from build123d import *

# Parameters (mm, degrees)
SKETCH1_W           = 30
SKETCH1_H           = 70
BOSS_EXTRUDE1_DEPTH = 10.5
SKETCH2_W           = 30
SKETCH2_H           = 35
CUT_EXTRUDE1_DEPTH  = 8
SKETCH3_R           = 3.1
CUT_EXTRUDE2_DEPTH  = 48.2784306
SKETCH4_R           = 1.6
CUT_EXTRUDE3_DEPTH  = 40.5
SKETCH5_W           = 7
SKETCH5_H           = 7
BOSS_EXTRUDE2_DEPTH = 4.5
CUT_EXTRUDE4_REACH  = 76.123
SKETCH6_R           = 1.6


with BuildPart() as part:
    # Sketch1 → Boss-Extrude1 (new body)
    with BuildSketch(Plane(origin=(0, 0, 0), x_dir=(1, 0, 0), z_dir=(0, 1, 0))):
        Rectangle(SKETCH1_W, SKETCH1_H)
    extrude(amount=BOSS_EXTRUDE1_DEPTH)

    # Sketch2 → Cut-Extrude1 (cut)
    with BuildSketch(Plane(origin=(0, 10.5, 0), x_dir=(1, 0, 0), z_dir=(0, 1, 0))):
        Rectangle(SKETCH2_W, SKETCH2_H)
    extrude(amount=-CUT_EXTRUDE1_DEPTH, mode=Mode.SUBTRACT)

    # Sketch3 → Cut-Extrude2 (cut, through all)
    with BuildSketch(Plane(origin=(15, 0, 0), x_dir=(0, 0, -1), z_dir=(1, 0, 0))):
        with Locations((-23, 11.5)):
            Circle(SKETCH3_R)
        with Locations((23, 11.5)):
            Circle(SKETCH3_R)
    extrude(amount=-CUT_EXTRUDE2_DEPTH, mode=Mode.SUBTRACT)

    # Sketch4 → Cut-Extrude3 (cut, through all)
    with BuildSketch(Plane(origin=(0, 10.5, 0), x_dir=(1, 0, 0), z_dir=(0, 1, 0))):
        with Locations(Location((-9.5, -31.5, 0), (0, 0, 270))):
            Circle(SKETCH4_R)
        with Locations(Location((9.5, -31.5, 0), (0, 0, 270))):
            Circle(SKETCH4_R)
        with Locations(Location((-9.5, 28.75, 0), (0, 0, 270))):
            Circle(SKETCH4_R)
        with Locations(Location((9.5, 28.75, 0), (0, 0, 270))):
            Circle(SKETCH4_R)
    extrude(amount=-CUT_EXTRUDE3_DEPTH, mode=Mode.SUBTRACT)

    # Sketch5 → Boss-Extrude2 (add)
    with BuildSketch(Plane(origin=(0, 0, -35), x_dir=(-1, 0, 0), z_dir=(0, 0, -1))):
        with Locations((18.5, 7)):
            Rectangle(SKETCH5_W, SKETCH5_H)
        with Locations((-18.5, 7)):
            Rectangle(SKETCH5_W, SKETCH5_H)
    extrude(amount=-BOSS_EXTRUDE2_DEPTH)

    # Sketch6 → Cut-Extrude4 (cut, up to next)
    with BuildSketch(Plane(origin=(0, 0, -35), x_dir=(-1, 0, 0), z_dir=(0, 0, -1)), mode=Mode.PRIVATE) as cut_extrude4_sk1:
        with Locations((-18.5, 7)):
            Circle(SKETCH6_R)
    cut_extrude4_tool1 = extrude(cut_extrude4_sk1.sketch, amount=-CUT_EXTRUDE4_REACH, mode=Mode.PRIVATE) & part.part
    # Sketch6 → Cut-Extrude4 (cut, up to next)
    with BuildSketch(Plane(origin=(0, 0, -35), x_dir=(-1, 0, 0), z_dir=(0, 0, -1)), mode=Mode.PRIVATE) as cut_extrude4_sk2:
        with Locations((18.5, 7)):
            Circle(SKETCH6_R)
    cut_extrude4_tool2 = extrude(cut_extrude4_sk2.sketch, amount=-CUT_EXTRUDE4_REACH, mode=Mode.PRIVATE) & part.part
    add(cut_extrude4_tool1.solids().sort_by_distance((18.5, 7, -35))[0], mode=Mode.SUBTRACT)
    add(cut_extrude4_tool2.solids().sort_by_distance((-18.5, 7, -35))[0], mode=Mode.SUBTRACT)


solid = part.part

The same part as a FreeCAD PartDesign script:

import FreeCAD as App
import Part
import Sketcher
from FreeCAD import Vector
Q = App.Units.Quantity


def add_polygon(sketch, points):
    """Adds a closed chain of lines whose ends are joined by coincident constraints."""
    first, n = sketch.GeometryCount, len(points)
    for a, b in zip(points, points[1:] + points[:1]):
        sketch.addGeometry(Part.LineSegment(App.Vector(*a, 0), App.Vector(*b, 0)), False)
    for i in range(n):
        sketch.addConstraint(Sketcher.Constraint("Coincident", first + i, 2, first + (i + 1) % n, 1))

doc = App.newDocument("Part")
body = doc.addObject("PartDesign::Body", "Body")

# Sketch on XZ plane
sketch1 = body.newObject("Sketcher::SketchObject", "Sketch")
sketch1.AttachmentSupport = (doc.getObject("XZ_Plane"), [""])
sketch1.MapMode = "FlatFace"
add_polygon(sketch1, [(-15, -35), (-15, 35), (15, 35), (15, -35)])  # lines 0-3
sketch1.addConstraint([
    Sketcher.Constraint("Vertical", 0),
    Sketcher.Constraint("Horizontal", 1),
    Sketcher.Constraint("Vertical", 2),
    Sketcher.Constraint("Horizontal", 3),
    Sketcher.Constraint("Symmetric", 0, 2, 2, 2, -1, 1),
    Sketcher.Constraint("DistanceX", 1, 1, 1, 2, Q("30 mm")),
    Sketcher.Constraint("DistanceY", 0, 1, 0, 2, Q("70 mm")),
])
pad1 = body.newObject("PartDesign::Pad", "Pad")
pad1.Profile = sketch1
pad1.Length = 10.5
pad1.Reversed = True

# Sketch on XZ plane
sketch2 = body.newObject("Sketcher::SketchObject", "Sketch001")
sketch2.AttachmentSupport = (doc.getObject("XZ_Plane"), [""])
sketch2.MapMode = "FlatFace"
sketch2.AttachmentOffset = App.Placement(Vector(0, 0, -10.5), App.Rotation())
add_polygon(sketch2, [(-15, -17.5), (-15, 17.5), (15, 17.5), (15, -17.5)])  # lines 0-3
sketch2.addConstraint([
    Sketcher.Constraint("Vertical", 0),
    Sketcher.Constraint("Horizontal", 1),
    Sketcher.Constraint("Vertical", 2),
    Sketcher.Constraint("Horizontal", 3),
    Sketcher.Constraint("Symmetric", 0, 2, 2, 2, -1, 1),
    Sketcher.Constraint("DistanceX", 1, 1, 1, 2, Q("30 mm")),
    Sketcher.Constraint("DistanceY", 0, 1, 0, 2, Q("35 mm")),
])
pocket1 = body.newObject("PartDesign::Pocket", "Pocket")
pocket1.Profile = sketch2
pocket1.Length = 8
pocket1.Reversed = True

# Sketch on YZ plane
sketch3 = body.newObject("Sketcher::SketchObject", "Sketch002")
sketch3.AttachmentSupport = (doc.getObject("YZ_Plane"), [""])
sketch3.MapMode = "FlatFace"
sketch3.AttachmentOffset = App.Placement(Vector(0, 0, 15), App.Rotation())
sketch3.addGeometry([
    Part.Circle(Vector(11.5, 23, 0), Vector(0, 0, 1), 3.1),
    Part.Circle(Vector(11.5, -23, 0), Vector(0, 0, 1), 3.1),
], False)
sketch3.addConstraint([
    Sketcher.Constraint("Equal", 0, 1),
    Sketcher.Constraint("Symmetric", 0, 3, 1, 3, -1),
    Sketcher.Constraint("Diameter", 0, Q("6.2 mm")),
    Sketcher.Constraint("DistanceY", -1, 1, 0, 3, Q("23 mm")),
    Sketcher.Constraint("DistanceX", -1, 1, 0, 3, Q("11.5 mm")),
])
pocket2 = body.newObject("PartDesign::Pocket", "Pocket001")
pocket2.Profile = sketch3
pocket2.Type = "ThroughAll"

# Sketch on XZ plane
sketch4 = body.newObject("Sketcher::SketchObject", "Sketch003")
sketch4.AttachmentSupport = (doc.getObject("XZ_Plane"), [""])
sketch4.MapMode = "FlatFace"
sketch4.AttachmentOffset = App.Placement(Vector(0, 0, -10.5), App.Rotation())
sketch4.addGeometry([
    Part.Circle(Vector(-9.5, 31.5, 0), Vector(0, 0, 1), 1.6),
    Part.Circle(Vector(9.5, 31.5, 0), Vector(0, 0, 1), 1.6),
    Part.Circle(Vector(-9.5, -28.75, 0), Vector(0, 0, 1), 1.6),
    Part.Circle(Vector(9.5, -28.75, 0), Vector(0, 0, 1), 1.6),
], False)
sketch4.addConstraint([
    Sketcher.Constraint("Equal", 0, 1),
    Sketcher.Constraint("Equal", 1, 2),
    Sketcher.Constraint("Equal", 2, 3),
    Sketcher.Constraint("Symmetric", 0, 3, 1, 3, -2),
    Sketcher.Constraint("Symmetric", 2, 3, 3, 3, -2),
    Sketcher.Constraint("Vertical", 0, 3, 2, 3),
    Sketcher.Constraint("Diameter", 0, Q("3.2 mm")),
    Sketcher.Constraint("DistanceX", 0, 3, 1, 3, Q("19 mm")),
    Sketcher.Constraint("DistanceY", -1, 1, 0, 3, Q("31.5 mm")),
    Sketcher.Constraint("DistanceY", 2, 3, -1, 1, Q("28.75 mm")),
])
pocket3 = body.newObject("PartDesign::Pocket", "Pocket002")
pocket3.Profile = sketch4
pocket3.Type = "ThroughAll"
pocket3.Reversed = True

# Sketch on XY plane
sketch5 = body.newObject("Sketcher::SketchObject", "Sketch004")
sketch5.AttachmentSupport = (doc.getObject("XY_Plane"), [""])
sketch5.MapMode = "FlatFace"
sketch5.AttachmentOffset = App.Placement(Vector(0, 0, -35), App.Rotation())
add_polygon(sketch5, [(-15, 10.5), (-15, 3.5), (-22, 3.5), (-22, 10.5)])  # lines 0-3
add_polygon(sketch5, [(22, 10.5), (22, 3.5), (15, 3.5), (15, 10.5)])  # lines 4-7
sketch5.addConstraint([
    Sketcher.Constraint("Vertical", 0),
    Sketcher.Constraint("Horizontal", 1),
    Sketcher.Constraint("Vertical", 2),
    Sketcher.Constraint("Horizontal", 3),
    Sketcher.Constraint("Vertical", 4),
    Sketcher.Constraint("Horizontal", 5),
    Sketcher.Constraint("Vertical", 6),
    Sketcher.Constraint("Horizontal", 7),
    Sketcher.Constraint("Symmetric", 1, 2, 4, 2, -2),
    Sketcher.Constraint("Symmetric", 3, 2, 6, 2, -2),
    Sketcher.Constraint("Equal", 7, 0),
    Sketcher.Constraint("DistanceX", 1, 2, 1, 1, Q("7 mm")),
    Sketcher.Constraint("DistanceX", 0, 2, -1, 1, Q("15 mm")),
    Sketcher.Constraint("DistanceY", -1, 1, 0, 2, Q("3.5 mm")),
])
pad2 = body.newObject("PartDesign::Pad", "Pad001")
pad2.Profile = sketch5
pad2.Length = 4.5

# Sketch on XY plane
sketch6 = body.newObject("Sketcher::SketchObject", "Sketch005")
sketch6.AttachmentSupport = (doc.getObject("XY_Plane"), [""])
sketch6.MapMode = "FlatFace"
sketch6.AttachmentOffset = App.Placement(Vector(0, 0, -35), App.Rotation())
sketch6.addGeometry(Part.Circle(Vector(18.5, 7, 0), Vector(0, 0, 1), 1.6), False)
sketch6.addConstraint([
    Sketcher.Constraint("Diameter", 0, Q("3.2 mm")),
    Sketcher.Constraint("DistanceY", -1, 1, 0, 3, Q("7 mm")),
    Sketcher.Constraint("DistanceX", -1, 1, 0, 3, Q("18.5 mm")),
])
pocket4 = body.newObject("PartDesign::Pocket", "Pocket003")
pocket4.Profile = sketch6
pocket4.Type = "UpToFirst"
pocket4.Reversed = True

# Sketch on XY plane
sketch7 = body.newObject("Sketcher::SketchObject", "Sketch006")
sketch7.AttachmentSupport = (doc.getObject("XY_Plane"), [""])
sketch7.MapMode = "FlatFace"
sketch7.AttachmentOffset = App.Placement(Vector(0, 0, -35), App.Rotation())
sketch7.addGeometry(Part.Circle(Vector(-18.5, 7, 0), Vector(0, 0, 1), 1.6), False)
sketch7.addConstraint([
    Sketcher.Constraint("Diameter", 0, Q("3.2 mm")),
    Sketcher.Constraint("DistanceY", -1, 1, 0, 3, Q("7 mm")),
    Sketcher.Constraint("DistanceX", 0, 3, -1, 1, Q("18.5 mm")),
])
pocket5 = body.newObject("PartDesign::Pocket", "Pocket004")
pocket5.Profile = sketch7
pocket5.Type = "UpToFirst"
pocket5.Reversed = True

doc.recompute()
